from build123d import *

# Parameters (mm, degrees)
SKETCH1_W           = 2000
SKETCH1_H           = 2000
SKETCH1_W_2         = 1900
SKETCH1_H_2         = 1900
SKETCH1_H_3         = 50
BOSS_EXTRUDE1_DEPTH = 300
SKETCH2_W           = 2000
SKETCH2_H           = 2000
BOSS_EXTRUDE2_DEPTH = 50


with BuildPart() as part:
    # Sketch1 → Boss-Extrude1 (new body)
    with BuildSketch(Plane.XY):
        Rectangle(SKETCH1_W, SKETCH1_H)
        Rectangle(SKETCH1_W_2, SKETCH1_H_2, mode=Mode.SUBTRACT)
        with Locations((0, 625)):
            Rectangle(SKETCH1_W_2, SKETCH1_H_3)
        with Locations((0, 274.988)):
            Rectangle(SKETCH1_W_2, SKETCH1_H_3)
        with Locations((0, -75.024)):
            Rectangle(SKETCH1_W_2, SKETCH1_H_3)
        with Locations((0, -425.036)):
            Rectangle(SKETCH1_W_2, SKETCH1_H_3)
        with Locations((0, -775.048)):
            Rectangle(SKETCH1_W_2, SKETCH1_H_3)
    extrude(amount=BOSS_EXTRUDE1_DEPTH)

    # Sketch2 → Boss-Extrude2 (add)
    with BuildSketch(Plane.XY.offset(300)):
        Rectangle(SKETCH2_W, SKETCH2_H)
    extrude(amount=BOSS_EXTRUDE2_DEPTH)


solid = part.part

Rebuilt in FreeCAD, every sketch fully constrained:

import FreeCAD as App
import Part
import Sketcher
Q = App.Units.Quantity

doc = App.newDocument("Part")
params = doc.addObject("Spreadsheet::Sheet", "Params")
for row, (alias, value) in enumerate([
    ("sketch1_width", "2000 mm"),
    ("sketch1_width2", "1900 mm"),
    ("sketch1_height", "300 mm"),
    ("pad1_length", "300 mm"),
    ("sketch2_width", "2000 mm"),
    ("pad2_length", "50 mm"),
], start=1):
    params.set(f"A{row}", alias)
    params.set(f"B{row}", "=" + value)
    params.setAlias(f"B{row}", alias)

body = doc.addObject("PartDesign::Body", "Body")

# Sketch on XY plane
sketch1 = body.newObject("Sketcher::SketchObject", "Sketch")
sketch1.AttachmentSupport = (doc.getObject("XY_Plane"), [""])
sketch1.MapMode = "FlatFace"
sketch1.addGeometry([
    Part.LineSegment(App.Vector(-1000, 1000, 0), App.Vector(-1000, -1000, 0)),  # 0
    Part.LineSegment(App.Vector(-1000, -1000, 0), App.Vector(1000, -1000, 0)),  # 1
    Part.LineSegment(App.Vector(1000, -1000, 0), App.Vector(1000, 1000, 0)),  # 2
    Part.LineSegment(App.Vector(1000, 1000, 0), App.Vector(-1000, 1000, 0)),  # 3
    Part.LineSegment(App.Vector(950, -950, 0), App.Vector(-950, -950, 0)),  # 4
    Part.LineSegment(App.Vector(-950, -950, 0), App.Vector(-950, -800.048, 0)),  # 5
    Part.LineSegment(App.Vector(-950, -800.048, 0), App.Vector(950, -800.048, 0)),  # 6
    Part.LineSegment(App.Vector(950, -800.048, 0), App.Vector(950, -950, 0)),  # 7
    Part.LineSegment(App.Vector(-950, -750.048, 0), App.Vector(-950, -450.036, 0)),  # 8
    Part.LineSegment(App.Vector(-950, -450.036, 0), App.Vector(950, -450.036, 0)),  # 9
    Part.LineSegment(App.Vector(950, -450.036, 0), App.Vector(950, -750.048, 0)),  # 10
    Part.LineSegment(App.Vector(950, -750.048, 0), App.Vector(-950, -750.048, 0)),  # 11
    Part.LineSegment(App.Vector(-950, -400.036, 0), App.Vector(-950, -100.024, 0)),  # 12
    Part.LineSegment(App.Vector(-950, -100.024, 0), App.Vector(950, -100.024, 0)),  # 13
    Part.LineSegment(App.Vector(950, -100.024, 0), App.Vector(950, -400.036, 0)),  # 14
    Part.LineSegment(App.Vector(950, -400.036, 0), App.Vector(-950, -400.036, 0)),  # 15
    Part.LineSegment(App.Vector(-950, -50.024, 0), App.Vector(-950, 249.988, 0)),  # 16
    Part.LineSegment(App.Vector(-950, 249.988, 0), App.Vector(950, 249.988, 0)),  # 17
    Part.LineSegment(App.Vector(950, 249.988, 0), App.Vector(950, -50.024, 0)),  # 18
    Part.LineSegment(App.Vector(950, -50.024, 0), App.Vector(-950, -50.024, 0)),  # 19
    Part.LineSegment(App.Vector(-950, 299.988, 0), App.Vector(-950, 600, 0)),  # 20
    Part.LineSegment(App.Vector(-950, 600, 0), App.Vector(950, 600, 0)),  # 21
    Part.LineSegment(App.Vector(950, 600, 0), App.Vector(950, 299.988, 0)),  # 22
    Part.LineSegment(App.Vector(950, 299.988, 0), App.Vector(-950, 299.988, 0)),  # 23
    Part.LineSegment(App.Vector(950, 950, 0), App.Vector(950, 650, 0)),  # 24
    Part.LineSegment(App.Vector(950, 650, 0), App.Vector(-950, 650, 0)),  # 25
    Part.LineSegment(App.Vector(-950, 650, 0), App.Vector(-950, 950, 0)),  # 26
    Part.LineSegment(App.Vector(-950, 950, 0), App.Vector(950, 950, 0)),  # 27
], False)
sketch1.addConstraint([
    Sketcher.Constraint("Coincident", 0, 2, 1, 1),
    Sketcher.Constraint("Coincident", 1, 2, 2, 1),
    Sketcher.Constraint("Coincident", 2, 2, 3, 1),
    Sketcher.Constraint("Coincident", 3, 2, 0, 1),
    Sketcher.Constraint("Coincident", 4, 2, 5, 1),
    Sketcher.Constraint("Coincident", 5, 2, 6, 1),
    Sketcher.Constraint("Coincident", 6, 2, 7, 1),
    Sketcher.Constraint("Coincident", 7, 2, 4, 1),
    Sketcher.Constraint("Coincident", 8, 2, 9, 1),
    Sketcher.Constraint("Coincident", 9, 2, 10, 1),
    Sketcher.Constraint("Coincident", 10, 2, 11, 1),
    Sketcher.Constraint("Coincident", 11, 2, 8, 1),
    Sketcher.Constraint("Coincident", 12, 2, 13, 1),
    Sketcher.Constraint("Coincident", 13, 2, 14, 1),
    Sketcher.Constraint("Coincident", 14, 2, 15, 1),
    Sketcher.Constraint("Coincident", 15, 2, 12, 1),
    Sketcher.Constraint("Coincident", 16, 2, 17, 1),
    Sketcher.Constraint("Coincident", 17, 2, 18, 1),
    Sketcher.Constraint("Coincident", 18, 2, 19, 1),
    Sketcher.Constraint("Coincident", 19, 2, 16, 1),
    Sketcher.Constraint("Coincident", 20, 2, 21, 1),
    Sketcher.Constraint("Coincident", 21, 2, 22, 1),
    Sketcher.Constraint("Coincident", 22, 2, 23, 1),
    Sketcher.Constraint("Coincident", 23, 2, 20, 1),
    Sketcher.Constraint("Coincident", 24, 2, 25, 1),
    Sketcher.Constraint("Coincident", 25, 2, 26, 1),
    Sketcher.Constraint("Coincident", 26, 2, 27, 1),
    Sketcher.Constraint("Coincident", 27, 2, 24, 1),
    Sketcher.Constraint("Vertical", 0),
    Sketcher.Constraint("Horizontal", 1),
    Sketcher.Constraint("Vertical", 2),
    Sketcher.Constraint("Horizontal", 3),
    Sketcher.Constraint("Horizontal", 4),
    Sketcher.Constraint("Vertical", 5),
    Sketcher.Constraint("Horizontal", 6),
    Sketcher.Constraint("Vertical", 7),
    Sketcher.Constraint("Vertical", 8),
    Sketcher.Constraint("Horizontal", 9),
    Sketcher.Constraint("Vertical", 10),
    Sketcher.Constraint("Horizontal", 11),
    Sketcher.Constraint("Vertical", 12),
    Sketcher.Constraint("Horizontal", 13),
    Sketcher.Constraint("Vertical", 14),
    Sketcher.Constraint("Horizontal", 15),
    Sketcher.Constraint("Vertical", 16),
    Sketcher.Constraint("Horizontal", 17),
    Sketcher.Constraint("Vertical", 18),
    Sketcher.Constraint("Horizontal", 19),
    Sketcher.Constraint("Vertical", 20),
    Sketcher.Constraint("Horizontal", 21),
    Sketcher.Constraint("Vertical", 22),
    Sketcher.Constraint("Horizontal", 23),
    Sketcher.Constraint("Vertical", 24),
    Sketcher.Constraint("Horizontal", 25),
    Sketcher.Constraint("Vertical", 26),
    Sketcher.Constraint("Horizontal", 27),
    Sketcher.Constraint("Symmetric", 0, 2, 2, 2, -1, 1),
    Sketcher.Constraint("Symmetric", 7, 2, 26, 2, -1, 1),
    Sketcher.Constraint("Vertical", 5, 2, 8, 2),
    Sketcher.Constraint("Vertical", 7, 2, 9, 2),
    Sketcher.Constraint("Vertical", 11, 2, 12, 2),
    Sketcher.Constraint("Vertical", 10, 2, 13, 2),
    Sketcher.Constraint("Vertical", 15, 2, 16, 2),
    Sketcher.Constraint("Vertical", 14, 2, 17, 2),
    Sketcher.Constraint("Vertical", 19, 2, 20, 2),
    Sketcher.Constraint("Vertical", 18, 2, 21, 2),
    Sketcher.Constraint("Vertical", 22, 2, 24, 2),
    Sketcher.Constraint("Vertical", 23, 2, 25, 2),
    Sketcher.Constraint("Equal", 3, 0),
    Sketcher.Constraint("Equal", 10, 12),
    Sketcher.Constraint("Equal", 14, 16),
    Sketcher.Constraint("Equal", 18, 20),
    Sketcher.Constraint("DistanceX", 1, 1, 1, 2, Q("2000 mm")),
    Sketcher.Constraint("DistanceX", 4, 2, 4, 1, Q("1900 mm")),
    Sketcher.Constraint("DistanceY", 24, 2, 24, 1, Q("300 mm")),
    Sketcher.Constraint("DistanceY", 4, 2, -1, 1, Q("950 mm")),
    Sketcher.Constraint("DistanceY", -1, 1, 20, 2, Q("600 mm")),
    Sketcher.Constraint("DistanceY", 6, 2, 10, 2, Q("50 mm")),
    Sketcher.Constraint("DistanceY", 9, 2, 14, 2, Q("50 mm")),
    Sketcher.Constraint("DistanceY", 13, 2, 18, 2, Q("50 mm")),
    Sketcher.Constraint("DistanceY", 17, 2, 22, 2, Q("50 mm")),
    Sketcher.Constraint("DistanceY", 5, 1, 5, 2, Q("149.952 mm")),
])
sketch1.setExpression("Constraints[72]", "Params.sketch1_width")
sketch1.setExpression("Constraints[73]", "Params.sketch1_width2")
sketch1.setExpression("Constraints[74]", "Params.sketch1_height")
pad1 = body.newObject("PartDesign::Pad", "Pad")
pad1.Profile = sketch1
pad1.setExpression("Length", "Params.pad1_length")

# Sketch on XY plane
sketch2 = body.newObject("Sketcher::SketchObject", "Sketch001")
sketch2.AttachmentSupport = (doc.getObject("XY_Plane"), [""])
sketch2.MapMode = "FlatFace"
sketch2.AttachmentOffset = App.Placement(App.Vector(0, 0, 300), App.Rotation())
sketch2.addGeometry([
    Part.LineSegment(App.Vector(-1000, 1000, 0), App.Vector(-1000, -1000, 0)),
    Part.LineSegment(App.Vector(-1000, -1000, 0), App.Vector(1000, -1000, 0)),
    Part.LineSegment(App.Vector(1000, -1000, 0), App.Vector(1000, 1000, 0)),
    Part.LineSegment(App.Vector(1000, 1000, 0), App.Vector(-1000, 1000, 0)),
], False)
sketch2.addConstraint([
    Sketcher.Constraint("Coincident", 0, 2, 1, 1),
    Sketcher.Constraint("Coincident", 1, 2, 2, 1),
    Sketcher.Constraint("Coincident", 2, 2, 3, 1),
    Sketcher.Constraint("Coincident", 3, 2, 0, 1),
    Sketcher.Constraint("Vertical", 0),
    Sketcher.Constraint("Horizontal", 1),
    Sketcher.Constraint("Vertical", 2),
    Sketcher.Constraint("Horizontal", 3),
    Sketcher.Constraint("Symmetric", 0, 2, 2, 2, -1, 1),
    Sketcher.Constraint("Equal", 3, 0),
    Sketcher.Constraint("DistanceX", 1, 1, 1, 2, Q("2000 mm")),
])
sketch2.setExpression("Constraints[10]", "Params.sketch2_width")
pad2 = body.newObject("PartDesign::Pad", "Pad001")
pad2.Profile = sketch2
pad2.setExpression("Length", "Params.pad2_length")

doc.recompute()
